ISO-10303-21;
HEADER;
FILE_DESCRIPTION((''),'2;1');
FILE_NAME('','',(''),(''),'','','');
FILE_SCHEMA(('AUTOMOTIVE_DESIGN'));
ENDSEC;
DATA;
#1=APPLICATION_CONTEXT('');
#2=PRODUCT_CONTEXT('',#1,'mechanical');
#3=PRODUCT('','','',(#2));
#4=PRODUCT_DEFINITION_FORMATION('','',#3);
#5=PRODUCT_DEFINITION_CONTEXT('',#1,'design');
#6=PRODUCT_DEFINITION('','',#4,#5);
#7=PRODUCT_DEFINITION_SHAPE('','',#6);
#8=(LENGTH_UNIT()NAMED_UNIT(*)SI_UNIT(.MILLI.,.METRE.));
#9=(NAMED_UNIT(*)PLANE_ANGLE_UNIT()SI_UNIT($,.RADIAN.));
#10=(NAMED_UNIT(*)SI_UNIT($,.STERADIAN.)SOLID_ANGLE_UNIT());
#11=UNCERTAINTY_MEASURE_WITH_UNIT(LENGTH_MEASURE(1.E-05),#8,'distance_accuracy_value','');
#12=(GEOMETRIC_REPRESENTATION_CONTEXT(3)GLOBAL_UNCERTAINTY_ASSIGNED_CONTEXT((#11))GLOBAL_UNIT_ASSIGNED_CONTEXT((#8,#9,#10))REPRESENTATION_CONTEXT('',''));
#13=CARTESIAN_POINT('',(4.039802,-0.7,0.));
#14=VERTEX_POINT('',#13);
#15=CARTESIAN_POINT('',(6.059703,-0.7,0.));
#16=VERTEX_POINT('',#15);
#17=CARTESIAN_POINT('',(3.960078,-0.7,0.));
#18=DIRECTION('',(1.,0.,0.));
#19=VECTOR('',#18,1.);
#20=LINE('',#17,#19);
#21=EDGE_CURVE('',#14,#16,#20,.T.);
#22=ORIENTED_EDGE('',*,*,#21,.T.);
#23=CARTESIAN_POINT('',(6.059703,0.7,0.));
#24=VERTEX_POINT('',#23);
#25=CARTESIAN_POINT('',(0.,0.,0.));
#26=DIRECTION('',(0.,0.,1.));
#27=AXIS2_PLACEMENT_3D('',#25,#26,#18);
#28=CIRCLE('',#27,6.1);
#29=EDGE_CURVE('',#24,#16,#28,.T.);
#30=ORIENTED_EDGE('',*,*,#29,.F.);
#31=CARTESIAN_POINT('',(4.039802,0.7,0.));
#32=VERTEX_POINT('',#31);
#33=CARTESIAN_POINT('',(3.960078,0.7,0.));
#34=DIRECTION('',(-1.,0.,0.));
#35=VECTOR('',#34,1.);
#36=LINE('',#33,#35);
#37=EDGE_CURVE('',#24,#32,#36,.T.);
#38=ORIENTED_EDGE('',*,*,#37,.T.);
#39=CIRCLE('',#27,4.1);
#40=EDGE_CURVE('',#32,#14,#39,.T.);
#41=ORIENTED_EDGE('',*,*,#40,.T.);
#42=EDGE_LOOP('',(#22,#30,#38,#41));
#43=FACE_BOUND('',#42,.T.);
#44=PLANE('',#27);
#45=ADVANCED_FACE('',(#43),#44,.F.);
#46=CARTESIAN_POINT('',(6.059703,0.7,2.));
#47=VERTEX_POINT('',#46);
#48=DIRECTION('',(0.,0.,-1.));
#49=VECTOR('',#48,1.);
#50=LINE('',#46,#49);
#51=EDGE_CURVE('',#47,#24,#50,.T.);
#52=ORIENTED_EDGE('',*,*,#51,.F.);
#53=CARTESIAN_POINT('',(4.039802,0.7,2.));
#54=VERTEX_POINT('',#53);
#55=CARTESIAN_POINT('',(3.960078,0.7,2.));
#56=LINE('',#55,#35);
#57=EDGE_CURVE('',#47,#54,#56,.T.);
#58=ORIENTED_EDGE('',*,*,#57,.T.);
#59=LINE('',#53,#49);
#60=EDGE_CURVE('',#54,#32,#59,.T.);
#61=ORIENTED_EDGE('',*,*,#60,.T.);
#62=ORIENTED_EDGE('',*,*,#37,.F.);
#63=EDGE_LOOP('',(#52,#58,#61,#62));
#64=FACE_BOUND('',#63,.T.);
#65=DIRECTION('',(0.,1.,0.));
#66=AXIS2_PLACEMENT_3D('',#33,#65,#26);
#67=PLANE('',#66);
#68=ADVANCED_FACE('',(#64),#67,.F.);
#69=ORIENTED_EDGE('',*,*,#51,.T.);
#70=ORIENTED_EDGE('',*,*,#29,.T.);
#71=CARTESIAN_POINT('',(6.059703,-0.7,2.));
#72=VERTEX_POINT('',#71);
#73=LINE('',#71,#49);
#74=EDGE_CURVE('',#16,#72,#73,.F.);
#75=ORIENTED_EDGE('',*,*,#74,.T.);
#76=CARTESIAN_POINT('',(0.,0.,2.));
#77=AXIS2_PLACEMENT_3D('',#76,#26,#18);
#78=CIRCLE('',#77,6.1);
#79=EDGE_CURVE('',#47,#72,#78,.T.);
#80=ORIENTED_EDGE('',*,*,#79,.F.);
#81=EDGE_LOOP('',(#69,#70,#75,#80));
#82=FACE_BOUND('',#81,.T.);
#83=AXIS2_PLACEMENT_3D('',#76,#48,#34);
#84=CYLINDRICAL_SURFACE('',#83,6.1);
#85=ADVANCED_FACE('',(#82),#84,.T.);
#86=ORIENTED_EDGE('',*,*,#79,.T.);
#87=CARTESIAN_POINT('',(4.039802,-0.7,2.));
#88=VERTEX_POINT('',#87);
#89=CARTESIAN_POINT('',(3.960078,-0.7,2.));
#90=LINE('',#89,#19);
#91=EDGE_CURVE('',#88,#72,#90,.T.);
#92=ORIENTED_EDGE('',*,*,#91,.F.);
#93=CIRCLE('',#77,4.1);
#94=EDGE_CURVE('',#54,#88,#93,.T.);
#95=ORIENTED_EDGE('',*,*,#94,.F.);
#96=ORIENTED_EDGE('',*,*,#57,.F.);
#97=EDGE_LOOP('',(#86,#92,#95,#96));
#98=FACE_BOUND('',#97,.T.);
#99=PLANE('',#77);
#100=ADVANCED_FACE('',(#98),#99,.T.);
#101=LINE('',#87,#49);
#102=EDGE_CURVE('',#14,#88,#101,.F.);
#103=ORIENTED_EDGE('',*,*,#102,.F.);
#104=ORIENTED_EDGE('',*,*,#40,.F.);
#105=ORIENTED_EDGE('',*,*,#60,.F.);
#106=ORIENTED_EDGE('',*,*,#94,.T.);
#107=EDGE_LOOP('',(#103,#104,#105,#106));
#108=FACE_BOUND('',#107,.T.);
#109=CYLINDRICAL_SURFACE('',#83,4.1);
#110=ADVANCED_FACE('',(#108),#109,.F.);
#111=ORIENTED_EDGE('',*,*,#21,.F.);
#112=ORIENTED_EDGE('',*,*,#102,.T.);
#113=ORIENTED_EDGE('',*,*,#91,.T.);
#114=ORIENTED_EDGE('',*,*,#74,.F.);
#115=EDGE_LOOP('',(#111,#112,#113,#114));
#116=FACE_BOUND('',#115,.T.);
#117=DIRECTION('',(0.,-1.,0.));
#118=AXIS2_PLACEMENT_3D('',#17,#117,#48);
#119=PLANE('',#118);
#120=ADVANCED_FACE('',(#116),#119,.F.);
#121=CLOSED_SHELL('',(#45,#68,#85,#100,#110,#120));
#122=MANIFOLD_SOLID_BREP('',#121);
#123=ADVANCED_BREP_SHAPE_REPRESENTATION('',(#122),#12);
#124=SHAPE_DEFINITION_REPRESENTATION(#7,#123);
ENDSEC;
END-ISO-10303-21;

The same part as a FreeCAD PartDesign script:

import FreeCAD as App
import Part
import Sketcher
Q = App.Units.Quantity

doc = App.newDocument("Part")
body = doc.addObject("PartDesign::Body", "Body")

# Sketch on XY plane
sketch1 = body.newObject("Sketcher::SketchObject", "Sketch")
sketch1.AttachmentSupport = (doc.getObject("XY_Plane"), [""])
sketch1.MapMode = "FlatFace"
sketch1.addGeometry([
    Part.Circle(App.Vector(0, 0, 0), App.Vector(0, 0, 1), 6.1),
    Part.Circle(App.Vector(0, 0, 0), App.Vector(0, 0, 1), 4.1),
], False)
sketch1.addConstraint([
    Sketcher.Constraint("Coincident", 0, 3, -1, 1),
    Sketcher.Constraint("Coincident", 1, 3, -1, 1),
    Sketcher.Constraint("Diameter", 0, Q("12.2 mm")),
    Sketcher.Constraint("Diameter", 1, Q("8.2 mm")),
])
pad1 = body.newObject("PartDesign::Pad", "Pad")
pad1.Profile = sketch1
pad1.Length = 2

# Sketch on XY plane
sketch2 = body.newObject("Sketcher::SketchObject", "Sketch001")
sketch2.AttachmentSupport = (doc.getObject("XY_Plane"), [""])
sketch2.MapMode = "FlatFace"
sketch2.AttachmentOffset = App.Placement(App.Vector(0, 0, 2), App.Rotation())
sketch2.addGeometry([
    Part.LineSegment(App.Vector(4, 0.7, 0), App.Vector(4, -0.7, 0)),
    Part.LineSegment(App.Vector(4, -0.7, 0), App.Vector(6.2, -0.7, 0)),
    Part.LineSegment(App.Vector(6.2, -0.7, 0), App.Vector(6.2, 0.7, 0)),
    Part.LineSegment(App.Vector(6.2, 0.7, 0), App.Vector(4, 0.7, 0)),
], False)
sketch2.addConstraint([
    Sketcher.Constraint("Coincident", 0, 2, 1, 1),
    Sketcher.Constraint("Coincident", 1, 2, 2, 1),
    Sketcher.Constraint("Coincident", 2, 2, 3, 1),
    Sketcher.Constraint("Coincident", 3, 2, 0, 1),
    Sketcher.Constraint("Vertical", 0),
    Sketcher.Constraint("Horizontal", 1),
    Sketcher.Constraint("Vertical", 2),
    Sketcher.Constraint("Horizontal", 3),
    Sketcher.Constraint("DistanceY", 0, 2, 0, 1, Q("1.4 mm")),
    Sketcher.Constraint("DistanceY", 0, 2, -1, 1, Q("0.7 mm")),
    Sketcher.Constraint("DistanceX", 1, 1, 1, 2, Q("2.271236 mm")),
    Sketcher.Constraint("DistanceX", -1, 1, 0, 2, Q("3.960078 mm")),
])
pocket1 = body.newObject("PartDesign::Pocket", "Pocket")
pocket1.Profile = sketch2
pocket1.Type = "ThroughAll"

doc.recompute()
